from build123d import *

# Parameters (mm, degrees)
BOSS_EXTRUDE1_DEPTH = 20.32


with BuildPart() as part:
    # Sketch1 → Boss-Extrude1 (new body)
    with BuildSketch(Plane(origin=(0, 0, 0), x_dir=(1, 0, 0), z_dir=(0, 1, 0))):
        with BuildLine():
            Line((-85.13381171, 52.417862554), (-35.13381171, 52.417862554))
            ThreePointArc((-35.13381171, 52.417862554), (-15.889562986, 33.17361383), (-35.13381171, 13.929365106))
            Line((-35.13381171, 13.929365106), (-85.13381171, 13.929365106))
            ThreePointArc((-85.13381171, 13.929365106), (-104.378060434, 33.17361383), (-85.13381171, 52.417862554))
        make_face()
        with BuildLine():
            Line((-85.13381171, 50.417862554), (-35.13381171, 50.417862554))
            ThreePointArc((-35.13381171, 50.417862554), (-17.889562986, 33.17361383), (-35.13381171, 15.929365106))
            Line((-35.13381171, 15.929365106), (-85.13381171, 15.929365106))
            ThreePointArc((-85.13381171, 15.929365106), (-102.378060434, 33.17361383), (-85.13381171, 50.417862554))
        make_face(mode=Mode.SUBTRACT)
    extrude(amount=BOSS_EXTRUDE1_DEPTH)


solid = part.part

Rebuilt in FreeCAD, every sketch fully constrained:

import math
import FreeCAD as App
import Part
import Sketcher

V = App.Vector

doc = App.newDocument("Part")
body = doc.addObject("PartDesign::Body", "Body")

# Sketch on XZ plane
sketch1 = body.newObject("Sketcher::SketchObject", "Sketch")
sketch1.AttachmentSupport = (doc.getObject("XZ_Plane"), [""])
sketch1.MapMode = "FlatFace"
sketch1.addGeometry([
    Part.LineSegment(V(-35, -52, 0), V(-85, -52, 0)),  # 0
    Part.ArcOfCircle(Part.Circle(V(-85, -33, 0), V(0, 0, 1), 19), math.radians(90), math.radians(270)),  # 1
    Part.LineSegment(V(-85, -14, 0), V(-35, -14, 0)),  # 2
    Part.ArcOfCircle(Part.Circle(V(-35, -33, 0), V(0, 0, 1), 19), math.radians(-90), math.radians(90)),  # 3
    Part.LineSegment(V(-85, -50, 0), V(-35, -50, 0)),  # 4
    Part.ArcOfCircle(Part.Circle(V(-35, -33, 0), V(0, 0, 1), 17), math.radians(-90), math.radians(90)),  # 5
    Part.LineSegment(V(-35, -16, 0), V(-85, -16, 0)),  # 6
    Part.ArcOfCircle(Part.Circle(V(-85, -33, 0), V(0, 0, 1), 17), math.radians(90), math.radians(270)),  # 7
], False)
sketch1.addConstraint([
    Sketcher.Constraint("Tangent", 0, 2, 1, 2),
    Sketcher.Constraint("Tangent", 1, 1, 2, 1),
    Sketcher.Constraint("Tangent", 2, 2, 3, 2),
    Sketcher.Constraint("Tangent", 3, 1, 0, 1),
    Sketcher.Constraint("Tangent", 4, 2, 5, 1),
    Sketcher.Constraint("Tangent", 5, 2, 6, 1),
    Sketcher.Constraint("Tangent", 6, 2, 7, 1),
    Sketcher.Constraint("Tangent", 7, 2, 4, 1),
    Sketcher.Constraint("Horizontal", 0),
    Sketcher.Constraint("Horizontal", 2),
    Sketcher.Constraint("Horizontal", 4),
    Sketcher.Constraint("Horizontal", 6),
    Sketcher.Constraint("Coincident", 5, 3, 3, 3),
    Sketcher.Constraint("Vertical", 7, 3, 0, 2),
    Sketcher.Constraint("DistanceX", 0, 2, 0, 1, 50.0),
    Sketcher.Constraint("DistanceY", 3, 1, 4, 2, 2.0),
    Sketcher.Constraint("Radius", 1, 19.244249),
    Sketcher.Constraint("DistanceX", 1, 3, -1, 1, 85.133812),
    Sketcher.Constraint("DistanceY", 1, 3, -1, 1, 33.173614),
])
pad1 = body.newObject("PartDesign::Pad", "Pad")
pad1.Profile = sketch1
pad1.Length = 20.32
pad1.Reversed = True

doc.recompute()
